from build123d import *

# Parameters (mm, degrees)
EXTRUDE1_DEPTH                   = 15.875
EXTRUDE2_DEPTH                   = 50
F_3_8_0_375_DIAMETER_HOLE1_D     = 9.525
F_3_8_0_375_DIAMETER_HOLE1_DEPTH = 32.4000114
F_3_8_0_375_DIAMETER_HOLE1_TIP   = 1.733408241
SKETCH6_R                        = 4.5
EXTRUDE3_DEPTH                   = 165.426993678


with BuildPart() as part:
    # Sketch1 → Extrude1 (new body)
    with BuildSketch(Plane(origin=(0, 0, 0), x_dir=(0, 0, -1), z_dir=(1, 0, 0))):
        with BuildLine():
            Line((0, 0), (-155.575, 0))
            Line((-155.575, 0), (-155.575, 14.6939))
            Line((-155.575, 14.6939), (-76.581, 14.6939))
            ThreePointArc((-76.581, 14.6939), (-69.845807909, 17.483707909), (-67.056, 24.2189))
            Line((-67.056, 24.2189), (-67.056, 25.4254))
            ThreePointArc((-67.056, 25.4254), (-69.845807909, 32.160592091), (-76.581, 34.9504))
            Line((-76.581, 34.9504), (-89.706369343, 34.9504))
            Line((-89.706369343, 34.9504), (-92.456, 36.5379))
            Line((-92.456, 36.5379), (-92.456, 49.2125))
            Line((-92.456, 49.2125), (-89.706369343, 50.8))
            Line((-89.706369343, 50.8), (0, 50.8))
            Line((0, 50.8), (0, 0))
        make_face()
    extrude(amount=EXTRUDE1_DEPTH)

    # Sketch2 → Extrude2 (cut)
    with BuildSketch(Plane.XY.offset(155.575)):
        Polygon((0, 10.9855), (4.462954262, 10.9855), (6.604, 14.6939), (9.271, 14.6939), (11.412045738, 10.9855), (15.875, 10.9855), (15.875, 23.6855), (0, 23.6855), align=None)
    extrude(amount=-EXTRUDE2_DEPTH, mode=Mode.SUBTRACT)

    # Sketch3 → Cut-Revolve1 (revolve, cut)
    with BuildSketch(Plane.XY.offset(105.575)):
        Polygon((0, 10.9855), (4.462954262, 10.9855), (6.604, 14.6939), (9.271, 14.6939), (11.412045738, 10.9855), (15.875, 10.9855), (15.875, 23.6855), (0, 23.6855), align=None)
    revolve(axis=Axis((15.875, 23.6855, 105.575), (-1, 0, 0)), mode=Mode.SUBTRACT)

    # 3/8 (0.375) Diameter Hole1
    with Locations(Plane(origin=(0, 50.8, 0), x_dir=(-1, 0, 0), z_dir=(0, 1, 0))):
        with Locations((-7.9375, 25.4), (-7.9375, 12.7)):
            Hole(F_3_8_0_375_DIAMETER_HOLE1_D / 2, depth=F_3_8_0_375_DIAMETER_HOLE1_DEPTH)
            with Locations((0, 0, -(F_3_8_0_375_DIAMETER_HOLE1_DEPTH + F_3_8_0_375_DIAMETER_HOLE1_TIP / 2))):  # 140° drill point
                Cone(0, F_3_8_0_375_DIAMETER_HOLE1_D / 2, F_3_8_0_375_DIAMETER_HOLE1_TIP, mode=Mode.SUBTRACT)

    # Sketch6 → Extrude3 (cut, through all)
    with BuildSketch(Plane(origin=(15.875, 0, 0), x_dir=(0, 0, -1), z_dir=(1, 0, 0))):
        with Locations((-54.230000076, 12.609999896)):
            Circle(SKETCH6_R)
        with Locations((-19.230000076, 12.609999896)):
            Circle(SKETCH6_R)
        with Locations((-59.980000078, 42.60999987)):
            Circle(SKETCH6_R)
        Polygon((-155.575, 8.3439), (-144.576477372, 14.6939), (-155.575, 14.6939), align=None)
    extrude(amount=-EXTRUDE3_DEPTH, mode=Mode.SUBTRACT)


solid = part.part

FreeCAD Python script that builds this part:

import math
import FreeCAD as App
import Part
import Sketcher
from FreeCAD import Vector
Q = App.Units.Quantity


def add_polygon(sketch, points):
    """Adds a closed chain of lines whose ends are joined by coincident constraints."""
    first, n = sketch.GeometryCount, len(points)
    for a, b in zip(points, points[1:] + points[:1]):
        sketch.addGeometry(Part.LineSegment(App.Vector(*a, 0), App.Vector(*b, 0)), False)
    for i in range(n):
        sketch.addConstraint(Sketcher.Constraint("Coincident", first + i, 2, first + (i + 1) % n, 1))

doc = App.newDocument("Part")
body = doc.addObject("PartDesign::Body", "Body")

sketch1 = body.newObject("Sketcher::SketchObject", "Sketch")
sketch1.AttachmentSupport = (doc.getObject("YZ_Plane"), [""])
sketch1.MapMode = "FlatFace"
sketch1.addGeometry([
    Part.LineSegment(Vector(0, 155.575, 0), Vector(0, 0, 0)),
    Part.LineSegment(Vector(0, 0, 0), Vector(50.8, 0, 0)),
    Part.LineSegment(Vector(50.8, 0, 0), Vector(50.8, 89.706369, 0)),
    Part.LineSegment(Vector(50.8, 89.706369, 0), Vector(49.2125, 92.456, 0)),
    Part.LineSegment(Vector(49.2125, 92.456, 0), Vector(36.5379, 92.456, 0)),
    Part.LineSegment(Vector(36.5379, 92.456, 0), Vector(34.9504, 89.706369, 0)),
    Part.LineSegment(Vector(34.9504, 89.706369, 0), Vector(34.9504, 76.581, 0)),
    Part.ArcOfCircle(Part.Circle(Vector(25.4254, 76.581, 0), Vector(0, 0, 1), 9.525), math.radians(-90), math.radians(0)),
    Part.LineSegment(Vector(25.4254, 67.056, 0), Vector(24.2189, 67.056, 0)),
    Part.ArcOfCircle(Part.Circle(Vector(24.2189, 76.581, 0), Vector(0, 0, 1), 9.525), math.radians(180), math.radians(270)),
    Part.LineSegment(Vector(14.6939, 76.581, 0), Vector(14.6939, 155.575, 0)),
    Part.LineSegment(Vector(14.6939, 155.575, 0), Vector(0, 155.575, 0)),
], False)
sketch1.addConstraint([
    Sketcher.Constraint("Coincident", 0, 2, 1, 1),
    Sketcher.Constraint("Coincident", 1, 2, 2, 1),
    Sketcher.Constraint("Coincident", 2, 2, 3, 1),
    Sketcher.Constraint("Coincident", 3, 2, 4, 1),
    Sketcher.Constraint("Coincident", 4, 2, 5, 1),
    Sketcher.Constraint("Coincident", 5, 2, 6, 1),
    Sketcher.Constraint("Tangent", 6, 2, 7, 2),
    Sketcher.Constraint("Tangent", 7, 1, 8, 1),
    Sketcher.Constraint("Tangent", 8, 2, 9, 2),
    Sketcher.Constraint("Tangent", 9, 1, 10, 1),
    Sketcher.Constraint("Coincident", 10, 2, 11, 1),
    Sketcher.Constraint("Coincident", 11, 2, 0, 1),
    Sketcher.Constraint("Vertical", 0),
    Sketcher.Constraint("Horizontal", 1),
    Sketcher.Constraint("Vertical", 2),
    Sketcher.Constraint("Horizontal", 4),
    Sketcher.Constraint("Vertical", 6),
    Sketcher.Constraint("Horizontal", 8),
    Sketcher.Constraint("Vertical", 10),
    Sketcher.Constraint("Horizontal", 11),
    Sketcher.Constraint("Coincident", 0, 2, -1, 1),
    Sketcher.Constraint("Equal", 7, 9),
    Sketcher.Constraint("Horizontal", 2, 2, 5, 2),
    Sketcher.Constraint("Equal", 3, 5),
    Sketcher.Constraint("DistanceX", 1, 1, 1, 2, Q("2 in")),
    Sketcher.Constraint("Angle", 3, Q("120 deg")),
    Sketcher.Constraint("Radius", 7, Q("0.375 in")),
    Sketcher.Constraint("DistanceY", 7, 1, 4, 2, Q("1 in")),
    Sketcher.Constraint("DistanceY", 10, 1, 10, 2, Q("3.11 in")),
    Sketcher.Constraint("DistanceX", 4, 2, 4, 1, Q("0.499 in")),
    Sketcher.Constraint("DistanceY", 0, 2, 0, 1, Q("6.125 in")),
    Sketcher.Constraint("DistanceX", 10, 2, 4, 2, Q("0.86 in")),
    Sketcher.Constraint("Distance", 3, Q("0.125 in")),
])
pad1 = body.newObject("PartDesign::Pad", "Pad")
pad1.Profile = sketch1
pad1.Length = Q("0.625 in")

sketch2 = body.newObject("Sketcher::SketchObject", "Sketch001")
sketch2.AttachmentSupport = (doc.getObject("XY_Plane"), [""])
sketch2.MapMode = "FlatFace"
sketch2.AttachmentOffset = App.Placement(Vector(0, 0, 6.125 * 25.4), App.Rotation())
add_polygon(sketch2, [(0, 10.9855), (4.462954, 10.9855), (6.604, 14.6939), (9.271, 14.6939), (11.412046, 10.9855), (15.875, 10.9855), (15.875, 23.6855), (0, 23.6855)])
sketch2.addConstraint([
    Sketcher.Constraint("Horizontal", 0),
    Sketcher.Constraint("Horizontal", 2),
    Sketcher.Constraint("Horizontal", 4),
    Sketcher.Constraint("Vertical", 5),
    Sketcher.Constraint("Horizontal", 6),
    Sketcher.Constraint("Vertical", 7),
    Sketcher.Constraint("PointOnObject", 6, 2, -2),
    Sketcher.Constraint("Horizontal", 0, 2, 3, 2),
    Sketcher.Constraint("Equal", 0, 4),
    Sketcher.Constraint("Equal", 1, 3),
    Sketcher.Constraint("DistanceY", 5, 1, 5, 2, Q("0.5 in")),
    Sketcher.Constraint("Angle", 1, Q("60 deg")),
    Sketcher.Constraint("DistanceX", 2, 1, 2, 2, Q("0.105 in")),
    Sketcher.Constraint("DistanceX", 6, 2, 6, 1, Q("0.625 in")),
    Sketcher.Constraint("DistanceY", 0, 2, 1, 2, Q("0.146 in")),
    Sketcher.Constraint("DistanceY", -1, 1, 0, 2, Q("0.4325 in")),
])
pocket1 = body.newObject("PartDesign::Pocket", "Pocket")
pocket1.Profile = sketch2
pocket1.Length = 50

sketch3 = body.newObject("Sketcher::SketchObject", "Sketch002")
sketch3.AttachmentSupport = (doc.getObject("XY_Plane"), [""])
sketch3.MapMode = "FlatFace"
sketch3.AttachmentOffset = App.Placement(Vector(0, 0, 105.575), App.Rotation())
add_polygon(sketch3, [(0, 10.9855), (4.462954, 10.9855), (6.604, 14.6939), (9.271, 14.6939), (11.412046, 10.9855), (15.875, 10.9855), (15.875, 23.6855), (0, 23.6855)])
sketch3.addGeometry(Part.LineSegment(Vector(15.875, 23.6855, 0), Vector(0, 23.6855, 0)), True)
sketch3.addConstraint([
    Sketcher.Constraint("Horizontal", 0),
    Sketcher.Constraint("Horizontal", 2),
    Sketcher.Constraint("Horizontal", 4),
    Sketcher.Constraint("Vertical", 5),
    Sketcher.Constraint("Horizontal", 6),
    Sketcher.Constraint("Vertical", 7),
    Sketcher.Constraint("Horizontal", 8),
    Sketcher.Constraint("Coincident", 8, 1, 5, 2),
    Sketcher.Constraint("PointOnObject", 6, 2, -2),
    Sketcher.Constraint("PointOnObject", 8, 2, -2),
    Sketcher.Constraint("Horizontal", 0, 2, 3, 2),
    Sketcher.Constraint("Equal", 0, 4),
    Sketcher.Constraint("Equal", 1, 3),
    Sketcher.Constraint("DistanceY", 5, 1, 5, 2, Q("0.5 in")),
    Sketcher.Constraint("Angle", 1, Q("60 deg")),
    Sketcher.Constraint("DistanceX", 2, 1, 2, 2, Q("0.105 in")),
    Sketcher.Constraint("DistanceX", 6, 2, 6, 1, Q("0.625 in")),
    Sketcher.Constraint("DistanceY", 0, 2, 1, 2, Q("0.146 in")),
    Sketcher.Constraint("DistanceY", -1, 1, 0, 2, Q("0.4325 in")),
])
groove = body.newObject("PartDesign::Groove", "Groove")
groove.Profile = sketch3
groove.ReferenceAxis = (sketch3, ["Axis0"])
groove.Angle = 360

sketch4 = body.newObject("Sketcher::SketchObject", "Sketch003")
sketch4.AttachmentSupport = (doc.getObject("XZ_Plane"), [""])
sketch4.MapMode = "FlatFace"
sketch4.AttachmentOffset = App.Placement(Vector(0, 0, -2 * 25.4), App.Rotation())
sketch4.addGeometry([
    Part.Circle(Vector(7.9375, 25.4, 0), Vector(0, 0, 1), 4.7625),
    Part.Circle(Vector(7.9375, 12.7, 0), Vector(0, 0, 1), 4.7625),
], False)
sketch4.addConstraint([
    Sketcher.Constraint("Equal", 0, 1),
    Sketcher.Constraint("Vertical", 0, 3, 1, 3),
    Sketcher.Constraint("Diameter", 0, Q("0.375 in")),
    Sketcher.Constraint("DistanceY", -1, 1, 0, 3, Q("1 in")),
    Sketcher.Constraint("DistanceY", -1, 1, 1, 3, Q("0.5 in")),
    Sketcher.Constraint("DistanceX", -1, 1, 0, 3, Q("0.3125 in")),
])
doc.recompute()
hole = body.newObject("PartDesign::Hole", "Hole")
hole.Profile = sketch4
hole.ThreadType = "None"
hole.Diameter = Q("0.375 in")
hole.DepthType = "Dimension"
hole.Depth = 32.400011
hole.DrillPoint = "Angled"
hole.DrillPointAngle = 140
hole.Reversed = True

sketch5 = body.newObject("Sketcher::SketchObject", "Sketch004")
sketch5.AttachmentSupport = (doc.getObject("YZ_Plane"), [""])
sketch5.MapMode = "FlatFace"
sketch5.AttachmentOffset = App.Placement(Vector(0, 0, 0.625 * 25.4), App.Rotation())
sketch5.addGeometry(Part.Circle(Vector(12.61, 54.23, 0), Vector(0, 0, 1), 4.5), False)
sketch5.addGeometry(Part.Circle(Vector(12.61, 19.23, 0), Vector(0, 0, 1), 4.5), False)
sketch5.addGeometry(Part.Circle(Vector(42.61, 59.98, 0), Vector(0, 0, 1), 4.5), False)
add_polygon(sketch5, [(8.3439, 155.575), (14.6939, 144.576477), (14.6939, 155.575)])
sketch5.addConstraint([
    Sketcher.Constraint("Vertical", 4),
    Sketcher.Constraint("Horizontal", 5),
    Sketcher.Constraint("Equal", 0, 1),
    Sketcher.Constraint("Equal", 1, 2),
    Sketcher.Constraint("Vertical", 0, 3, 1, 3),
    Sketcher.Constraint("Angle", 3, Q("-60 deg")),
    Sketcher.Constraint("Distance", 3, Q("0.5 in")),
    Sketcher.Constraint("Diameter", 0, Q("9 mm")),
    Sketcher.Constraint("DistanceY", -1, 1, 4, 2, Q("6.125 in")),
    Sketcher.Constraint("DistanceX", -1, 1, 3, 2, Q("0.5785 in")),
    Sketcher.Constraint("DistanceX", -1, 1, 0, 3, Q("12.61 mm")),
    Sketcher.Constraint("DistanceY", -1, 1, 0, 3, Q("54.23 mm")),
    Sketcher.Constraint("DistanceY", -1, 1, 1, 3, Q("19.23 mm")),
    Sketcher.Constraint("DistanceX", -1, 1, 2, 3, Q("42.61 mm")),
    Sketcher.Constraint("DistanceY", -1, 1, 2, 3, Q("59.98 mm")),
])
pocket2 = body.newObject("PartDesign::Pocket", "Pocket001")
pocket2.Profile = sketch5
pocket2.Type = "ThroughAll"

doc.recompute()
